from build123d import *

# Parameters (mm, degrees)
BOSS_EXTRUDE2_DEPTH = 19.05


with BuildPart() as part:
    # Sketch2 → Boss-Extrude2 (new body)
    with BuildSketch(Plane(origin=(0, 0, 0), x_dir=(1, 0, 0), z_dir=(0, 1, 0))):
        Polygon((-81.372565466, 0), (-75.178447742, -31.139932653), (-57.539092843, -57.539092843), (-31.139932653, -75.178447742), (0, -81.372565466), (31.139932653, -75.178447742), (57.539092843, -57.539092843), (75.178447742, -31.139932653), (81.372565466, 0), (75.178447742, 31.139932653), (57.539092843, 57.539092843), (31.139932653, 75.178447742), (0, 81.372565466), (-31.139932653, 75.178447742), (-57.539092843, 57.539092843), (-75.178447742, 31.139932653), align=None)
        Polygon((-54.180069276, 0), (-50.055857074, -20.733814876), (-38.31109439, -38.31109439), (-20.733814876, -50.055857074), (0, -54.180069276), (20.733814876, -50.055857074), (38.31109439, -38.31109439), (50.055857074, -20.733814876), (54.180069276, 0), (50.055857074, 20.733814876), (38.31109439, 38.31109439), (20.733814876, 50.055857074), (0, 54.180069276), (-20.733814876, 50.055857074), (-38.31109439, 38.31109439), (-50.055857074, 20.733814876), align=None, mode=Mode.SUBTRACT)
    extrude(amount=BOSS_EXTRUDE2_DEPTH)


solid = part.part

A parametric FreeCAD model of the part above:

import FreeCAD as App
import Part
import Sketcher

V = App.Vector
Q = App.Units.Quantity


def add_polygon(sketch, points):
    """Adds a closed chain of lines whose ends are joined by coincident constraints."""
    first, n = sketch.GeometryCount, len(points)
    for a, b in zip(points, points[1:] + points[:1]):
        sketch.addGeometry(Part.LineSegment(App.Vector(*a, 0), App.Vector(*b, 0)), False)
    for i in range(n):
        sketch.addConstraint(Sketcher.Constraint("Coincident", first + i, 2, first + (i + 1) % n, 1))

doc = App.newDocument("Part")
body = doc.addObject("PartDesign::Body", "Body")

# Sketch on XZ plane
sketch1 = body.newObject("Sketcher::SketchObject", "Sketch")
sketch1.AttachmentSupport = (doc.getObject("XZ_Plane"), [""])
sketch1.MapMode = "FlatFace"
add_polygon(sketch1, [(-81, 0), (-75, 31), (-58, 58), (-31, 75), (0, 81), (31, 75), (58, 58), (75, 31), (81, 0), (75, -31), (58, -58), (31, -75), (0, -81), (-31, -75), (-58, -58), (-75, -31)])  # lines 0-15
add_polygon(sketch1, [(-50, 21), (-54, 0), (-50, -21), (-38, -38), (-21, -50), (0, -54), (21, -50), (38, -38), (50, -21), (54, 0), (50, 21), (38, 38), (21, 50), (0, 54), (-21, 50), (-38, 38)])  # lines 16-31
sketch1.addConstraint(Sketcher.Constraint("Symmetric", 0, 2, 8, 2, -1, 1))
sketch1.addConstraint(Sketcher.Constraint("Symmetric", 1, 2, 9, 2, -1, 1))
sketch1.addConstraint(Sketcher.Constraint("Symmetric", 2, 2, 10, 2, -1, 1))
sketch1.addConstraint(Sketcher.Constraint("Symmetric", 3, 2, 11, 2, -1, 1))
sketch1.addConstraint(Sketcher.Constraint("Symmetric", 4, 2, 12, 2, -1, 1))
sketch1.addConstraint(Sketcher.Constraint("Symmetric", 5, 2, 13, 2, -1, 1))
sketch1.addConstraint(Sketcher.Constraint("Symmetric", 6, 2, 14, 2, -1, 1))
sketch1.addConstraint(Sketcher.Constraint("Symmetric", 7, 2, 15, 2, -1, 1))
sketch1.addConstraint(Sketcher.Constraint("Symmetric", 16, 2, 24, 2, -1, 1))
sketch1.addConstraint(Sketcher.Constraint("Symmetric", 17, 2, 25, 2, -1, 1))
sketch1.addConstraint(Sketcher.Constraint("Symmetric", 18, 2, 26, 2, -1, 1))
sketch1.addConstraint(Sketcher.Constraint("Symmetric", 19, 2, 27, 2, -1, 1))
sketch1.addConstraint(Sketcher.Constraint("Symmetric", 20, 2, 28, 2, -1, 1))
sketch1.addConstraint(Sketcher.Constraint("Symmetric", 21, 2, 29, 2, -1, 1))
sketch1.addConstraint(Sketcher.Constraint("Symmetric", 22, 2, 30, 2, -1, 1))
sketch1.addConstraint(Sketcher.Constraint("Symmetric", 23, 2, 31, 2, -1, 1))
sketch1.addConstraint(Sketcher.Constraint("Symmetric", 2, 2, 4, 2, -2))
sketch1.addConstraint(Sketcher.Constraint("Symmetric", 1, 2, 5, 2, -2))
sketch1.addConstraint(Sketcher.Constraint("Symmetric", 0, 2, 6, 2, -2))
sketch1.addConstraint(Sketcher.Constraint("Symmetric", 19, 2, 21, 2, -2))
sketch1.addConstraint(Sketcher.Constraint("Symmetric", 18, 2, 22, 2, -2))
sketch1.addConstraint(Sketcher.Constraint("Symmetric", 17, 2, 23, 2, -2))
sketch1.addConstraint(Sketcher.Constraint("PointOnObject", 3, 2, -2))
sketch1.addConstraint(Sketcher.Constraint("PointOnObject", 7, 2, -1))
sketch1.addConstraint(Sketcher.Constraint("PointOnObject", 16, 2, -1))
sketch1.addConstraint(Sketcher.Constraint("PointOnObject", 20, 2, -2))
sketch1.addConstraint(Sketcher.Constraint("Perpendicular", 0, 4))
sketch1.addConstraint(Sketcher.Constraint("Perpendicular", 1, 5))
sketch1.addConstraint(Sketcher.Constraint("Perpendicular", 12, 16))
sketch1.addConstraint(Sketcher.Constraint("Parallel", 14, 18))
sketch1.addConstraint(Sketcher.Constraint("Parallel", 13, 19))
sketch1.addConstraint(Sketcher.Constraint("Perpendicular", 16, 20))
sketch1.addConstraint(Sketcher.Constraint("Equal", 0, 1))
sketch1.addConstraint(Sketcher.Constraint("Equal", 1, 2))
sketch1.addConstraint(Sketcher.Constraint("Equal", 2, 3))
sketch1.addConstraint(Sketcher.Constraint("Equal", 17, 18))
sketch1.addConstraint(Sketcher.Constraint("Equal", 18, 19))
sketch1.addConstraint(Sketcher.Constraint("Equal", 19, 20))
sketch1.addConstraint(Sketcher.Constraint("Distance", 0, Q("1.25 in")))
sketch1.addConstraint(Sketcher.Constraint("Angle", 0, Q("78.75 deg")))
sketch1.addConstraint(Sketcher.Constraint("Angle", 1, Q("56.25 deg")))
sketch1.addConstraint(Sketcher.Constraint("DistanceX", 13, 2, 18, 2, 19.227998))
pad1 = body.newObject("PartDesign::Pad", "Pad")
pad1.Profile = sketch1
pad1.Length = Q("0.75 in")
pad1.Reversed = True

doc.recompute()
